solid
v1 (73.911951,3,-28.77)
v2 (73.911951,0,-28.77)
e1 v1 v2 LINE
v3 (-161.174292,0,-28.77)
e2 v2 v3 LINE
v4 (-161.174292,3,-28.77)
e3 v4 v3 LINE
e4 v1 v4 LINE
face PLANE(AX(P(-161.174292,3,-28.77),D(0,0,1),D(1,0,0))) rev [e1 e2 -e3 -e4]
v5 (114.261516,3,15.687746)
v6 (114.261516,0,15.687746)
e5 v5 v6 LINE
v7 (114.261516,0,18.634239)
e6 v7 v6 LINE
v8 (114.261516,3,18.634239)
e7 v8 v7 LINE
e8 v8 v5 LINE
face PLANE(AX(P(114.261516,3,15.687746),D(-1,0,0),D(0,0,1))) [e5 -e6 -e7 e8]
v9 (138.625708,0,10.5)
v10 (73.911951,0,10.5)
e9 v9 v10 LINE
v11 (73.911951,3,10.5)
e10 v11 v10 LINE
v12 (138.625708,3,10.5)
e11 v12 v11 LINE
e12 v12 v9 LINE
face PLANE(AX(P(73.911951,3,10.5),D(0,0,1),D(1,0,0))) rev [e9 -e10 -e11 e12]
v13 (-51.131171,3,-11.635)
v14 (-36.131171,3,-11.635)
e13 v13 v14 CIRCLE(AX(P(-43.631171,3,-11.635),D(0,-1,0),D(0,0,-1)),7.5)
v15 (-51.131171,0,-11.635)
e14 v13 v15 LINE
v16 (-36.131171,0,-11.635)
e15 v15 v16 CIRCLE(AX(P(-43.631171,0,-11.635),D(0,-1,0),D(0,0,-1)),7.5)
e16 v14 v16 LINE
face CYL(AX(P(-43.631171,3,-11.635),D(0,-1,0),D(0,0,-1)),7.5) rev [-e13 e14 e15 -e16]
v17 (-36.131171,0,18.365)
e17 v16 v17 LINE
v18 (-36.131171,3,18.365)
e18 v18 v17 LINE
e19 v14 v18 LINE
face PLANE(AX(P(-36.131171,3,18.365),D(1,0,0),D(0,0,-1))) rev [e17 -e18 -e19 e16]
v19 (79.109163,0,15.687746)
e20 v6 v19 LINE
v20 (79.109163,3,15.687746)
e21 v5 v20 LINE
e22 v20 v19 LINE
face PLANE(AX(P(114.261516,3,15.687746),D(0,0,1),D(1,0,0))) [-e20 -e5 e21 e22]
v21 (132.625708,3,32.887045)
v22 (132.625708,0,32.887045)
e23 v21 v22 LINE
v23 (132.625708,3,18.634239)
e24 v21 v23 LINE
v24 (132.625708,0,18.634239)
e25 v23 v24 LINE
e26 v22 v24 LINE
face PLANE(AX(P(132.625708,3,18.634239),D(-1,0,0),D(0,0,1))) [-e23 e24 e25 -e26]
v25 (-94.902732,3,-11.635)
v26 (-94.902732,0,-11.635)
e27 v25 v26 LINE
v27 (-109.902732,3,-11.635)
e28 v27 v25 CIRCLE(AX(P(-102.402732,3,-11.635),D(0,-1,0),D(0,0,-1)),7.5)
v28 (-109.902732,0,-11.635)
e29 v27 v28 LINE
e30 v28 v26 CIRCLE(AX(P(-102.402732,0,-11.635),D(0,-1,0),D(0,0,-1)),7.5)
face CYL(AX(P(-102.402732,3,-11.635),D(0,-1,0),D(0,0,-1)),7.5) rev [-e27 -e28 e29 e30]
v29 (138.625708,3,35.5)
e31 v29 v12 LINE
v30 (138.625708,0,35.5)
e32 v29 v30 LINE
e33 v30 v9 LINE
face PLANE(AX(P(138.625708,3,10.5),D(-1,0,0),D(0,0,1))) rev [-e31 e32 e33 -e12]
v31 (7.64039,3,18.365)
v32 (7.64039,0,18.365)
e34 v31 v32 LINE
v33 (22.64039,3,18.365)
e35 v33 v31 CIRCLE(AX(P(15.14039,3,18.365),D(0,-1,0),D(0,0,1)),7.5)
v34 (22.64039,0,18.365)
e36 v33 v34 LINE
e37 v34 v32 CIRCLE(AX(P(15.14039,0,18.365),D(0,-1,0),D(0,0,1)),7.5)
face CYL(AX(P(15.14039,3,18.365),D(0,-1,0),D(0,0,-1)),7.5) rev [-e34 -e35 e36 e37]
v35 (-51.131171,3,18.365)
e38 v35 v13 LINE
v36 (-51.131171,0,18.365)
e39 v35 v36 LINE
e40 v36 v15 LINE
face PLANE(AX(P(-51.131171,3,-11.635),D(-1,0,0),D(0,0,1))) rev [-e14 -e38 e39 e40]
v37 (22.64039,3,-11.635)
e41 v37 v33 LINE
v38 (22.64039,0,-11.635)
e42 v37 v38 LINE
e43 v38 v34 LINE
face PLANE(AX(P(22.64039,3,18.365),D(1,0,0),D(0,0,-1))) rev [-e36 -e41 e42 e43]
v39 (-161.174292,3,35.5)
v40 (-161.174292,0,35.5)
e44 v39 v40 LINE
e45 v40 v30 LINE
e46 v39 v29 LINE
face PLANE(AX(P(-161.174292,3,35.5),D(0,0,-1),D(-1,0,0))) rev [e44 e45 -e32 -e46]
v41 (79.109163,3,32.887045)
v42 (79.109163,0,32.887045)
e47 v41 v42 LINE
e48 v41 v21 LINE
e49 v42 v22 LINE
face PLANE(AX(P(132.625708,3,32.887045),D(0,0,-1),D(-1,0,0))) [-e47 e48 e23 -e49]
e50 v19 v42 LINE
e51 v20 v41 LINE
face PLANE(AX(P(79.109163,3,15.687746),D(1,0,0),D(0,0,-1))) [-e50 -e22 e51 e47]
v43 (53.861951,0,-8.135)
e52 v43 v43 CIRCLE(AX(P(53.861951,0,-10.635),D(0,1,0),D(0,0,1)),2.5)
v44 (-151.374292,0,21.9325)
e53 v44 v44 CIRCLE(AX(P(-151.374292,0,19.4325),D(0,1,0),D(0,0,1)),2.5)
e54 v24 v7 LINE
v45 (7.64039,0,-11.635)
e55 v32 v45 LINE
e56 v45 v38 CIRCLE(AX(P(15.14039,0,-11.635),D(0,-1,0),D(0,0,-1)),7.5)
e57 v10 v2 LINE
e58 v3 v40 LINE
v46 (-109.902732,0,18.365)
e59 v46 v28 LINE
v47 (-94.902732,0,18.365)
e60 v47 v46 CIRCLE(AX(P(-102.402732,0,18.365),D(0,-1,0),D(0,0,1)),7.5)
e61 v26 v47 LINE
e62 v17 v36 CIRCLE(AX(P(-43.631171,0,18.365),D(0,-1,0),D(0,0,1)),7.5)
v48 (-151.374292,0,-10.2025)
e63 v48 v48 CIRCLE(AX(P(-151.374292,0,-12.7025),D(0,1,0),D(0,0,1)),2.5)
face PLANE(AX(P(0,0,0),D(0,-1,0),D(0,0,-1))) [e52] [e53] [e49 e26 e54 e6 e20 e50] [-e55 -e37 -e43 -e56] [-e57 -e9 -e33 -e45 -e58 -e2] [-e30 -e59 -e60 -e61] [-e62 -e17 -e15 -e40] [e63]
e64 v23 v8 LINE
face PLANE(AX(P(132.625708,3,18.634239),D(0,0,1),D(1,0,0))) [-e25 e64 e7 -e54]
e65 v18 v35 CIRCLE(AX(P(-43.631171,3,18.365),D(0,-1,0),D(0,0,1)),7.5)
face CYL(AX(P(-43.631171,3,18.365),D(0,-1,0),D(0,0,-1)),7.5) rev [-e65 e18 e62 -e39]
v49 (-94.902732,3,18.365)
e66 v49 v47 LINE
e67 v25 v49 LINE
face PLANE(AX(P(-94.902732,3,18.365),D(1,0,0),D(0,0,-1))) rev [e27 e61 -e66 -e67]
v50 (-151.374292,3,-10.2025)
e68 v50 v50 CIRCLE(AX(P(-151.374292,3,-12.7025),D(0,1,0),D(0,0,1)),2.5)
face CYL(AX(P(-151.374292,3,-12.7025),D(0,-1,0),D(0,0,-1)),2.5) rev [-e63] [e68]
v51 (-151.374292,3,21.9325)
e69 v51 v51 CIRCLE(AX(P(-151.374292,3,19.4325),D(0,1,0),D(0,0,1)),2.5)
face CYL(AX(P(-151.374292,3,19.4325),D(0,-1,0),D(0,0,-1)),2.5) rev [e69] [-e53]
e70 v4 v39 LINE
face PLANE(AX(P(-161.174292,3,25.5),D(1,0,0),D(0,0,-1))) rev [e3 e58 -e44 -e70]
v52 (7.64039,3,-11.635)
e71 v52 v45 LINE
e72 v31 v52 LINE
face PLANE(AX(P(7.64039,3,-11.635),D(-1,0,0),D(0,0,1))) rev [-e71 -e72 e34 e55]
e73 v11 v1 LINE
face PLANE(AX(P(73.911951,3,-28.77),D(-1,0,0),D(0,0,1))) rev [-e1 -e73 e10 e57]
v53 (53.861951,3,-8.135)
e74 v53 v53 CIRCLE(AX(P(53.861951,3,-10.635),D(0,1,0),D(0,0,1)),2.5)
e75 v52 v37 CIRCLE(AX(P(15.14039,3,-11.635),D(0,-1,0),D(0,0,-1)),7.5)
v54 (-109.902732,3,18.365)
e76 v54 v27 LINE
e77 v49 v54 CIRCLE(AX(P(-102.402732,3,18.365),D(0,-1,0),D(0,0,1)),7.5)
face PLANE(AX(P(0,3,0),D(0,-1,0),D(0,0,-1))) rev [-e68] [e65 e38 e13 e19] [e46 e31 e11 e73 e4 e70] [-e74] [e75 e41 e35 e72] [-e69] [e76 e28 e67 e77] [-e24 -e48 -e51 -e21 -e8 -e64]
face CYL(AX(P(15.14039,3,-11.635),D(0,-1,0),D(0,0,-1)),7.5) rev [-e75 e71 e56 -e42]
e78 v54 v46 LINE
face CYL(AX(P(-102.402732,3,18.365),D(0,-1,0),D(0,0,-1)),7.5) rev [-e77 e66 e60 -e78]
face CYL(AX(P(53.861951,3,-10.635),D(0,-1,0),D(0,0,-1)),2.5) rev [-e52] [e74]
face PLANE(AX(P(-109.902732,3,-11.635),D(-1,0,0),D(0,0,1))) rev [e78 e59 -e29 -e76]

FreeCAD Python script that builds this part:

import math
import FreeCAD as App
import Part
import Sketcher
from FreeCAD import Vector
Q = App.Units.Quantity

doc = App.newDocument("Part")
body = doc.addObject("PartDesign::Body", "Body")

sketch1 = body.newObject("Sketcher::SketchObject", "Sketch")
sketch1.AttachmentSupport = (doc.getObject("XZ_Plane"), [""])
sketch1.MapMode = "FlatFace"
sketch1.addGeometry([
    Part.LineSegment(Vector(-161.2, 35.5, 0), Vector(138.6, 35.5, 0)),
    Part.LineSegment(Vector(138.6, 35.5, 0), Vector(138.6, 10.5, 0)),
    Part.LineSegment(Vector(138.6, 10.5, 0), Vector(73.9, 10.5, 0)),
    Part.LineSegment(Vector(73.9, 10.5, 0), Vector(73.9, -28.8, 0)),
    Part.LineSegment(Vector(73.9, -28.8, 0), Vector(-161.2, -28.8, 0)),
    Part.LineSegment(Vector(-161.2, -28.8, 0), Vector(-161.2, 35.5, 0)),
    Part.Circle(Vector(-151.4, 19.4, 0), Vector(0, 0, 1), 2.5),
    Part.LineSegment(Vector(79.1, 15.7, 0), Vector(114.3, 15.7, 0)),
    Part.LineSegment(Vector(114.3, 15.7, 0), Vector(114.3, 18.6, 0)),
    Part.LineSegment(Vector(114.3, 18.6, 0), Vector(132.6, 18.6, 0)),
    Part.LineSegment(Vector(132.6, 18.6, 0), Vector(132.6, 32.9, 0)),
    Part.LineSegment(Vector(132.6, 32.9, 0), Vector(79.1, 32.9, 0)),
    Part.LineSegment(Vector(79.1, 32.9, 0), Vector(79.1, 15.7, 0)),
    Part.Circle(Vector(-151.4, -12.7, 0), Vector(0, 0, 1), 2.5),
    Part.Circle(Vector(53.9, -10.6, 0), Vector(0, 0, 1), 2.5),
], False)
sketch1.addConstraint([
    Sketcher.Constraint("Coincident", 0, 2, 1, 1),
    Sketcher.Constraint("Coincident", 1, 2, 2, 1),
    Sketcher.Constraint("Coincident", 2, 2, 3, 1),
    Sketcher.Constraint("Coincident", 3, 2, 4, 1),
    Sketcher.Constraint("Coincident", 4, 2, 5, 1),
    Sketcher.Constraint("Coincident", 5, 2, 0, 1),
    Sketcher.Constraint("Coincident", 7, 2, 8, 1),
    Sketcher.Constraint("Coincident", 8, 2, 9, 1),
    Sketcher.Constraint("Coincident", 9, 2, 10, 1),
    Sketcher.Constraint("Coincident", 10, 2, 11, 1),
    Sketcher.Constraint("Coincident", 11, 2, 12, 1),
    Sketcher.Constraint("Coincident", 12, 2, 7, 1),
    Sketcher.Constraint("Horizontal", 0),
    Sketcher.Constraint("Vertical", 1),
    Sketcher.Constraint("Horizontal", 2),
    Sketcher.Constraint("Vertical", 3),
    Sketcher.Constraint("Horizontal", 4),
    Sketcher.Constraint("Vertical", 5),
    Sketcher.Constraint("Horizontal", 7),
    Sketcher.Constraint("Vertical", 8),
    Sketcher.Constraint("Horizontal", 9),
    Sketcher.Constraint("Vertical", 10),
    Sketcher.Constraint("Horizontal", 11),
    Sketcher.Constraint("Vertical", 12),
    Sketcher.Constraint("Equal", 6, 13),
    Sketcher.Constraint("Equal", 13, 14),
    Sketcher.Constraint("Vertical", 6, 3, 13, 3),
    Sketcher.Constraint("Diameter", 6, Q("5 mm")),
    Sketcher.Constraint("DistanceY", 1, 2, 1, 1, Q("25 mm")),
    Sketcher.Constraint("DistanceX", 0, 1, 0, 2, Q("299.8 mm")),
    Sketcher.Constraint("DistanceX", 6, 3, 0, 2, Q("290 mm")),
    Sketcher.Constraint("DistanceX", 9, 2, 1, 2, Q("6 mm")),
    Sketcher.Constraint("DistanceY", 3, 2, 3, 1, Q("39.27 mm")),
    Sketcher.Constraint("DistanceY", -1, 1, 0, 2, Q("35.5 mm")),
    Sketcher.Constraint("DistanceX", 14, 3, 2, 2, Q("20.05 mm")),
    Sketcher.Constraint("DistanceY", 12, 2, 12, 1, Q("17.199299 mm")),
    Sketcher.Constraint("DistanceY", 14, 3, -1, 1, Q("10.635 mm")),
    Sketcher.Constraint("DistanceY", 13, 3, 6, 3, Q("32.135 mm")),
    Sketcher.Constraint("DistanceX", 9, 1, 9, 2, Q("18.364192 mm")),
    Sketcher.Constraint("DistanceY", -1, 1, 6, 3, Q("19.4325 mm")),
    Sketcher.Constraint("DistanceX", 2, 2, 2, 1, Q("64.713757 mm")),
    Sketcher.Constraint("DistanceX", 7, 1, 7, 2, Q("35.152352 mm")),
    Sketcher.Constraint("DistanceY", 8, 1, 8, 2, Q("2.946493 mm")),
    Sketcher.Constraint("DistanceX", -1, 1, 14, 3, Q("53.861951 mm")),
    Sketcher.Constraint("DistanceY", -1, 1, 8, 2, Q("18.634239 mm")),
])
pad1 = body.newObject("PartDesign::Pad", "Pad")
pad1.Profile = sketch1
pad1.Length = 3
pad1.Reversed = True

sketch2 = body.newObject("Sketcher::SketchObject", "Sketch001")
sketch2.AttachmentSupport = (doc.getObject("XZ_Plane"), [""])
sketch2.MapMode = "FlatFace"
sketch2.addGeometry([
    Part.LineSegment(Vector(8, 18, 0), Vector(8, -12, 0)),
    Part.ArcOfCircle(Part.Circle(Vector(15, -12, 0), Vector(0, 0, 1), 8), math.radians(180), math.radians(360)),
    Part.LineSegment(Vector(23, -12, 0), Vector(23, 18, 0)),
    Part.ArcOfCircle(Part.Circle(Vector(15, 18, 0), Vector(0, 0, 1), 8), math.radians(0), math.radians(180)),
    Part.LineSegment(Vector(-51, 18, 0), Vector(-51, -12, 0)),
    Part.ArcOfCircle(Part.Circle(Vector(-44, -12, 0), Vector(0, 0, 1), 8), math.radians(180), math.radians(360)),
    Part.LineSegment(Vector(-36, -12, 0), Vector(-36, 18, 0)),
    Part.ArcOfCircle(Part.Circle(Vector(-44, 18, 0), Vector(0, 0, 1), 8), math.radians(0), math.radians(180)),
    Part.LineSegment(Vector(-110, 18, 0), Vector(-110, -12, 0)),
    Part.ArcOfCircle(Part.Circle(Vector(-102, -12, 0), Vector(0, 0, 1), 8), math.radians(180), math.radians(360)),
    Part.LineSegment(Vector(-95, -12, 0), Vector(-95, 18, 0)),
    Part.ArcOfCircle(Part.Circle(Vector(-102, 18, 0), Vector(0, 0, 1), 8), math.radians(0), math.radians(180)),
], False)
sketch2.addConstraint([
    Sketcher.Constraint("Tangent", 0, 2, 1, 1),
    Sketcher.Constraint("Tangent", 1, 2, 2, 1),
    Sketcher.Constraint("Tangent", 2, 2, 3, 1),
    Sketcher.Constraint("Tangent", 3, 2, 0, 1),
    Sketcher.Constraint("Tangent", 4, 2, 5, 1),
    Sketcher.Constraint("Tangent", 5, 2, 6, 1),
    Sketcher.Constraint("Tangent", 6, 2, 7, 1),
    Sketcher.Constraint("Tangent", 7, 2, 4, 1),
    Sketcher.Constraint("Tangent", 8, 2, 9, 1),
    Sketcher.Constraint("Tangent", 9, 2, 10, 1),
    Sketcher.Constraint("Tangent", 10, 2, 11, 1),
    Sketcher.Constraint("Tangent", 11, 2, 8, 1),
    Sketcher.Constraint("Vertical", 0),
    Sketcher.Constraint("Vertical", 2),
    Sketcher.Constraint("Vertical", 4),
    Sketcher.Constraint("Vertical", 6),
    Sketcher.Constraint("Vertical", 8),
    Sketcher.Constraint("Vertical", 10),
    Sketcher.Constraint("Equal", 3, 5),
    Sketcher.Constraint("Equal", 7, 9),
    Sketcher.Constraint("Horizontal", 1, 3, 5, 3),
    Sketcher.Constraint("Horizontal", 3, 3, 7, 3),
    Sketcher.Constraint("Horizontal", 5, 3, 9, 3),
    Sketcher.Constraint("Horizontal", 7, 3, 11, 3),
    Sketcher.Constraint("Radius", 1, Q("7.5 mm")),
    Sketcher.Constraint("DistanceY", 0, 2, 0, 1, Q("30 mm")),
    Sketcher.Constraint("DistanceY", 1, 3, -1, 1, Q("11.635 mm")),
    Sketcher.Constraint("DistanceX", -1, 1, 1, 3, Q("15.14039 mm")),
    Sketcher.Constraint("DistanceX", 5, 3, -1, 1, Q("43.631171 mm")),
    Sketcher.Constraint("DistanceX", 9, 3, -1, 1, Q("102.402732 mm")),
])
pocket1 = body.newObject("PartDesign::Pocket", "Pocket")
pocket1.Profile = sketch2
pocket1.Type = "ThroughAll"

doc.recompute()
